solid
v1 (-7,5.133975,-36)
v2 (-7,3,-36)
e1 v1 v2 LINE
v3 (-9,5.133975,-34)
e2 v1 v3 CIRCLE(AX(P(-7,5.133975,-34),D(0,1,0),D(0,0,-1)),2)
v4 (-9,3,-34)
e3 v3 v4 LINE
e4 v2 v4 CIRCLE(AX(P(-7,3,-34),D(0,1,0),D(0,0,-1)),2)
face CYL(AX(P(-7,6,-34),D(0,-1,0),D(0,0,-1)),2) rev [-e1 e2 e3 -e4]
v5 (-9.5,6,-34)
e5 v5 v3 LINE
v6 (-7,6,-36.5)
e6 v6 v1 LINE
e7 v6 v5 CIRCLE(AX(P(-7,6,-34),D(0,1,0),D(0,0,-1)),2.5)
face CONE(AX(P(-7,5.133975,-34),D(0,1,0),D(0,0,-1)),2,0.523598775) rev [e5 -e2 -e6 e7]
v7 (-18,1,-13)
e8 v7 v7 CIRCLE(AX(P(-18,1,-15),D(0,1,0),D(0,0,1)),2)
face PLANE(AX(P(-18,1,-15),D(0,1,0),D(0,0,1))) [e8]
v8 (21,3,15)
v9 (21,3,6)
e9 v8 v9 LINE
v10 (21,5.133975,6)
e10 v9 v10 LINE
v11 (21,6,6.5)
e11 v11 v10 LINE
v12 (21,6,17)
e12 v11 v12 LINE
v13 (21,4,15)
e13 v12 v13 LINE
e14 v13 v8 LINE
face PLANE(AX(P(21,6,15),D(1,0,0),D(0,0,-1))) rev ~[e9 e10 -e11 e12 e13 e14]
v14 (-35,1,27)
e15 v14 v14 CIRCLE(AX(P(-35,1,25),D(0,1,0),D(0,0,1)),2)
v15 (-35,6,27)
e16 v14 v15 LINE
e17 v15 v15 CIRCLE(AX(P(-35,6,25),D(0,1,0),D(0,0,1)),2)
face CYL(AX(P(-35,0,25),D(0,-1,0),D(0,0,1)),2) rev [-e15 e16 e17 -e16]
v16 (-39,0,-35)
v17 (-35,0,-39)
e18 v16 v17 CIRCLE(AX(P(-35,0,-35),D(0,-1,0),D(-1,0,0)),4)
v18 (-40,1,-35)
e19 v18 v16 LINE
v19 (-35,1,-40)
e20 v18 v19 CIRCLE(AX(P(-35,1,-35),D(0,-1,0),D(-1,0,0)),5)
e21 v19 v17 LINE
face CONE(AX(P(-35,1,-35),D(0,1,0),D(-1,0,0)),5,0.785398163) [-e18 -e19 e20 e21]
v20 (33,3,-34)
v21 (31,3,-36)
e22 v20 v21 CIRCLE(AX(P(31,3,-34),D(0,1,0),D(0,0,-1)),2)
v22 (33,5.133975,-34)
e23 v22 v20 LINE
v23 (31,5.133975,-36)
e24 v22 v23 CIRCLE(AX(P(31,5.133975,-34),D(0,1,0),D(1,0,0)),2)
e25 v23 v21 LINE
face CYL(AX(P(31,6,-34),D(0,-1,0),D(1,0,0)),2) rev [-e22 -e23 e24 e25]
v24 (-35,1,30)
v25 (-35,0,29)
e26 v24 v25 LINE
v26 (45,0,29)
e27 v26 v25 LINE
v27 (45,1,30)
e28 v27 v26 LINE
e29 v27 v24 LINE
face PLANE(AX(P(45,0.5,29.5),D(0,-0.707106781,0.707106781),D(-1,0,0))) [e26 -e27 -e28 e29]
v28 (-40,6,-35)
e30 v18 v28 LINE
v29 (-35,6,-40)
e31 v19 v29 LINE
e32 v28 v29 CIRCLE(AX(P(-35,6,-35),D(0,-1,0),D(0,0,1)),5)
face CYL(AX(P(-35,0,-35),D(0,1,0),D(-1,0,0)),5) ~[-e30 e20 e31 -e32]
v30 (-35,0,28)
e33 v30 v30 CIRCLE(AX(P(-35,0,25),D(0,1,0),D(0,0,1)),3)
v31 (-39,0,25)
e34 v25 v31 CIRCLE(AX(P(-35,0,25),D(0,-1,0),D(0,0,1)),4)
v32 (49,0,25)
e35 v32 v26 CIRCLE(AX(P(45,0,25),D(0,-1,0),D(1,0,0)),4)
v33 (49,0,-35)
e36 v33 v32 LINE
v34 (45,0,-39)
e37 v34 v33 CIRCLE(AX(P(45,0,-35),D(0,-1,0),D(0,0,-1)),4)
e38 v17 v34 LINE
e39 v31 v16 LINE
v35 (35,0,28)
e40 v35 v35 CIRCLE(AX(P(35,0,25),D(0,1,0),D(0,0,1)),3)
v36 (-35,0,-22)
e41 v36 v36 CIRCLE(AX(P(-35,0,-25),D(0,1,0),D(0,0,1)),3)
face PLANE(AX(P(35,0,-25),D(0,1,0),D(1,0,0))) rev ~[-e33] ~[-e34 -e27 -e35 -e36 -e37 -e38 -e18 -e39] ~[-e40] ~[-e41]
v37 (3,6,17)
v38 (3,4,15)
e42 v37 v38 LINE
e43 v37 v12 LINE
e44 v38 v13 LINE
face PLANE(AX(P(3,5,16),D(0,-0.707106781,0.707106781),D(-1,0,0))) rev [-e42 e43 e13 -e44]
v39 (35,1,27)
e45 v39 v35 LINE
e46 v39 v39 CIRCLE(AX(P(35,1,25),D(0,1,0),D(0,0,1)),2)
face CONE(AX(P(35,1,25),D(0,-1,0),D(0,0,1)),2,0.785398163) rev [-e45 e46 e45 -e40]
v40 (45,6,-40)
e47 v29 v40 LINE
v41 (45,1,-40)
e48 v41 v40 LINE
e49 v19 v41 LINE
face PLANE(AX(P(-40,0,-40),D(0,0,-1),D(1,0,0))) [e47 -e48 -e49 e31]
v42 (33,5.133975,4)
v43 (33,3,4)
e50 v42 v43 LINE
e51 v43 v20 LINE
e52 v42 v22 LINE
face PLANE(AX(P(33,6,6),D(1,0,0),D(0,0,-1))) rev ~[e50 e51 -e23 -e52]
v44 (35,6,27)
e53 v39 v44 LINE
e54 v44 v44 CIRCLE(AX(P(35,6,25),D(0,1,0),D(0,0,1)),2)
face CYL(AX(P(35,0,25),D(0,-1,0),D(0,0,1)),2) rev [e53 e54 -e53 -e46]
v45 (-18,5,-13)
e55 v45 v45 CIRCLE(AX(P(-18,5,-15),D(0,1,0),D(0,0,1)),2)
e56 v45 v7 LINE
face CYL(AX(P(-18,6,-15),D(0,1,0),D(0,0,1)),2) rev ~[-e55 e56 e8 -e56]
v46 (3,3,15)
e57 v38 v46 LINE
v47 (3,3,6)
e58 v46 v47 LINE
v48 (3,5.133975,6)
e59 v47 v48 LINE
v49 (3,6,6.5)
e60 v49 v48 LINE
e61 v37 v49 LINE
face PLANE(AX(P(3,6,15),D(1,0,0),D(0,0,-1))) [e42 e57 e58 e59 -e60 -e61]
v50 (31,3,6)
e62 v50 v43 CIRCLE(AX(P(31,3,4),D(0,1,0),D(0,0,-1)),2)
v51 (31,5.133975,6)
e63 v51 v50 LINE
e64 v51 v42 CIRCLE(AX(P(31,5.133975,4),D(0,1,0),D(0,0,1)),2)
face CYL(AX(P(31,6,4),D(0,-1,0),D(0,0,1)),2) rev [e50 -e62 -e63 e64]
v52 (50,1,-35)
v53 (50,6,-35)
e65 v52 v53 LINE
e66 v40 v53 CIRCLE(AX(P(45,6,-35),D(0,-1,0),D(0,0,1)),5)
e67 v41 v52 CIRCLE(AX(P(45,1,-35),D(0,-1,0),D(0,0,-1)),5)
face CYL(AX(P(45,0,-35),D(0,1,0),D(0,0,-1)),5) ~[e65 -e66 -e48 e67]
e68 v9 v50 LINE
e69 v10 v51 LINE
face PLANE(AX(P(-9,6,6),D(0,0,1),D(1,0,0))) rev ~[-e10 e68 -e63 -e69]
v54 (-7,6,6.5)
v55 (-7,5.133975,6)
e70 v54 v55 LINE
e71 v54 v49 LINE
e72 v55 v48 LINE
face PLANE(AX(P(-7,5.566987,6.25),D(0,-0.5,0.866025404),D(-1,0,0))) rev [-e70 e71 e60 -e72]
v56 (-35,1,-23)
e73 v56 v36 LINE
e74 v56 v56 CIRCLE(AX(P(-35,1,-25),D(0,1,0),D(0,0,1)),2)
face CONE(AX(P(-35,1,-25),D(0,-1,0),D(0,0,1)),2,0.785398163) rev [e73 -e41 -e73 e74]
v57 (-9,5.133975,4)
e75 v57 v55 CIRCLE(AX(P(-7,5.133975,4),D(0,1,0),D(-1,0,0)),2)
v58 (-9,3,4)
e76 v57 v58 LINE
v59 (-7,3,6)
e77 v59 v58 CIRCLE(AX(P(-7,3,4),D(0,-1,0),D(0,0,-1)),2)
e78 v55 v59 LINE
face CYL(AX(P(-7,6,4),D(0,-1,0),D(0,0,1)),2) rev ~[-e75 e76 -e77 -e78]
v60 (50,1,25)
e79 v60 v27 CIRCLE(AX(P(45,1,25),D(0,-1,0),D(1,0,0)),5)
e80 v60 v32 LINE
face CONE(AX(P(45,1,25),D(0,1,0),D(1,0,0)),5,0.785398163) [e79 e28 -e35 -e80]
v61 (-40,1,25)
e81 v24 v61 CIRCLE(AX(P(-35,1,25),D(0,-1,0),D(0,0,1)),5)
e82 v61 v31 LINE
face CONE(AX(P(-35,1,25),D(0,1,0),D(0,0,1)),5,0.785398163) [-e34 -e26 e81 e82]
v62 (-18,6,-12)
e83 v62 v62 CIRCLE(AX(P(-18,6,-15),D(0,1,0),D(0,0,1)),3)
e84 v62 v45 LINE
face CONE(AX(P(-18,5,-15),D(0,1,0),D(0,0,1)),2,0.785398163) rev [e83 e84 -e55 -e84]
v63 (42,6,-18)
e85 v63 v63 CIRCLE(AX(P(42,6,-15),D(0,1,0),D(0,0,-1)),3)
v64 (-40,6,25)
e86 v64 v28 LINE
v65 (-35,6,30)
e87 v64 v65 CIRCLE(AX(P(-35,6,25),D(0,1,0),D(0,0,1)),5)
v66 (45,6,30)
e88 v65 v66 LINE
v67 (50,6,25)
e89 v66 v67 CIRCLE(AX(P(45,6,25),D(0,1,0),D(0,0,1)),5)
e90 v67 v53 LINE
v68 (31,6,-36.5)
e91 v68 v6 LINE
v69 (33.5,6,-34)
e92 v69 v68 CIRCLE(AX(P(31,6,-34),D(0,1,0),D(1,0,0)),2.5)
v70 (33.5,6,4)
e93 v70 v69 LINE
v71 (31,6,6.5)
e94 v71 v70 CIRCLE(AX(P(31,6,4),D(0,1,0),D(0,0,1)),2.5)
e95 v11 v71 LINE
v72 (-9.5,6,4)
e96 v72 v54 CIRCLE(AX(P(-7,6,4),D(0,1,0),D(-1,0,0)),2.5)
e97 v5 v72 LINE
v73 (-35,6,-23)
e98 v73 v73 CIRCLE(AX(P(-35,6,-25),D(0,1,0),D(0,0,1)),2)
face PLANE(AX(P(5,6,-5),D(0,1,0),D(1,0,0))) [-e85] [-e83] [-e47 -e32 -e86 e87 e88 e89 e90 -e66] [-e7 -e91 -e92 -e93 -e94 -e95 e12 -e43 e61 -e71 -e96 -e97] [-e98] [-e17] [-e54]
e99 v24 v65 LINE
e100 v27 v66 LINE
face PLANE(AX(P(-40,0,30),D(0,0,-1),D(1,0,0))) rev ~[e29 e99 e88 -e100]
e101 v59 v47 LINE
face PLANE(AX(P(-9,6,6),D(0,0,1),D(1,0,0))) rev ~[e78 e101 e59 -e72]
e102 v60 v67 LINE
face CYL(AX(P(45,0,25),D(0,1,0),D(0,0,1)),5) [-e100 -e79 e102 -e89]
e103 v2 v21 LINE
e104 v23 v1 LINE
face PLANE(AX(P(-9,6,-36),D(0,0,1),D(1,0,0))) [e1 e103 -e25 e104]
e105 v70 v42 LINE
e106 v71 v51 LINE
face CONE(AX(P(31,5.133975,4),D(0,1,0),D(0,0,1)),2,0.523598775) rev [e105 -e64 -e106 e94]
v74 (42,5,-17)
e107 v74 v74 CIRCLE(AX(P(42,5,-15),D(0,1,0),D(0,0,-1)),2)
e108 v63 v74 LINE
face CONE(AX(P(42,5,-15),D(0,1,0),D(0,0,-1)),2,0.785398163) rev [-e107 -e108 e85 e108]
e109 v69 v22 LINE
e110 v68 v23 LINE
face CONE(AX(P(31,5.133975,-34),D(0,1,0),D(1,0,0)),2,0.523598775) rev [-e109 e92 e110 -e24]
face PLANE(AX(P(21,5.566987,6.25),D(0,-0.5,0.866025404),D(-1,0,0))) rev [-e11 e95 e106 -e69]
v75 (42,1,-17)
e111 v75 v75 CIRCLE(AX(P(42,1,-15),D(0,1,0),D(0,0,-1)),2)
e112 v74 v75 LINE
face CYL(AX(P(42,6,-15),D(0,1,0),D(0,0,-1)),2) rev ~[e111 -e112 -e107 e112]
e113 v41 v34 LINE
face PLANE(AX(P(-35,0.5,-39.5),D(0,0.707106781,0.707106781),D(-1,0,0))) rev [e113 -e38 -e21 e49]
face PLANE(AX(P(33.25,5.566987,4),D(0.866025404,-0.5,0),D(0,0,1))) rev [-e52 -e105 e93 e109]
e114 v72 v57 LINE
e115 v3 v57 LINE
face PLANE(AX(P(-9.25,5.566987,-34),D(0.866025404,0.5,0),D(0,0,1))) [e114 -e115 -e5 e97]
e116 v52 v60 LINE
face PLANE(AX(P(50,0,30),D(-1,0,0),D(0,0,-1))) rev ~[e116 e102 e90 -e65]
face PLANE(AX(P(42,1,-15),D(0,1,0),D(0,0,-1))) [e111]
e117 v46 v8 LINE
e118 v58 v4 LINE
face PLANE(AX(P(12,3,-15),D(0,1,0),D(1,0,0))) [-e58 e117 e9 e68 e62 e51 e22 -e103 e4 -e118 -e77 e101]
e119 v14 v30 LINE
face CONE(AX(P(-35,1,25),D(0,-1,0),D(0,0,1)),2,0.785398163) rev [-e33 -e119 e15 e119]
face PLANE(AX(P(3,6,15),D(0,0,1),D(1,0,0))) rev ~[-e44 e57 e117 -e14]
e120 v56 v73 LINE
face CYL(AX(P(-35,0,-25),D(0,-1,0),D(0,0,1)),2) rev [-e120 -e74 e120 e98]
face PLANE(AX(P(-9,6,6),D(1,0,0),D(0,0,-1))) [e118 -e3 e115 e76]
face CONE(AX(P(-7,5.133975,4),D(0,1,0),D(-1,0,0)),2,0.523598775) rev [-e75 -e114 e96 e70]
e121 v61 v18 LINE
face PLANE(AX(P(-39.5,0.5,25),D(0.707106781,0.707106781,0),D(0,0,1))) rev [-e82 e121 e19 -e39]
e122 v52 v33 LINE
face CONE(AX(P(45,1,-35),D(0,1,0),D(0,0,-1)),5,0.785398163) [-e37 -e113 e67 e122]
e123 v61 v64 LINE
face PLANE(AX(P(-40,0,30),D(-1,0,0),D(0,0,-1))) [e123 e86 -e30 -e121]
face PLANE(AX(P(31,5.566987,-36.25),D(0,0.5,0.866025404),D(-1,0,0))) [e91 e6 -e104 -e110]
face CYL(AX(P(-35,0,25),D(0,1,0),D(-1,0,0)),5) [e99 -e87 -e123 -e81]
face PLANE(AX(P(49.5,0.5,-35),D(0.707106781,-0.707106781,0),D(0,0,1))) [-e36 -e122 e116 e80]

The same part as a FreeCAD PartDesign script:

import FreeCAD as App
import Part
import Sketcher

V = App.Vector
Q = App.Units.Quantity


def edges_at(feature, points):
    """Names of the edges that pass closest to the given points."""
    edges = feature.Shape.Edges
    near = lambda p: min(range(len(edges)), key=lambda i: edges[i].distToShape(Part.Vertex(*p))[0])
    return sorted({f"Edge{near(p) + 1}" for p in points})


def add_polygon(sketch, points):
    """Adds a closed chain of lines whose ends are joined by coincident constraints."""
    first, n = sketch.GeometryCount, len(points)
    for a, b in zip(points, points[1:] + points[:1]):
        sketch.addGeometry(Part.LineSegment(App.Vector(*a, 0), App.Vector(*b, 0)), False)
    for i in range(n):
        sketch.addConstraint(Sketcher.Constraint("Coincident", first + i, 2, first + (i + 1) % n, 1))

doc = App.newDocument("Part")
body = doc.addObject("PartDesign::Body", "Body")

# Sketch on XZ plane
sketch1 = body.newObject("Sketcher::SketchObject", "Sketch")
sketch1.AttachmentSupport = (doc.getObject("XZ_Plane"), [""])
sketch1.MapMode = "FlatFace"
add_polygon(sketch1, [(-40, -40), (-40, 30), (50, 30), (50, -40)])  # lines 0-3
sketch1.addGeometry(Part.Circle(V(-35, 25, 0), V(0, 0, 1), 2), False)  # 4
sketch1.addGeometry(Part.Circle(V(35, 25, 0), V(0, 0, 1), 2), False)  # 5
sketch1.addGeometry(Part.Circle(V(-35, -25, 0), V(0, 0, 1), 2), False)  # 6
sketch1.addConstraint(Sketcher.Constraint("Vertical", 0))
sketch1.addConstraint(Sketcher.Constraint("Horizontal", 1))
sketch1.addConstraint(Sketcher.Constraint("Vertical", 2))
sketch1.addConstraint(Sketcher.Constraint("Horizontal", 3))
sketch1.addConstraint(Sketcher.Constraint("Equal", 4, 5))
sketch1.addConstraint(Sketcher.Constraint("Equal", 5, 6))
sketch1.addConstraint(Sketcher.Constraint("Symmetric", 5, 3, 6, 3, -1, 1))
sketch1.addConstraint(Sketcher.Constraint("Symmetric", 4, 3, 5, 3, -2))
sketch1.addConstraint(Sketcher.Constraint("Diameter", 4, Q("4 mm")))
sketch1.addConstraint(Sketcher.Constraint("DistanceX", 1, 1, 1, 2, Q("90 mm")))
sketch1.addConstraint(Sketcher.Constraint("DistanceY", 0, 1, 0, 2, Q("70 mm")))
sketch1.addConstraint(Sketcher.Constraint("DistanceX", 4, 3, -1, 1, Q("35 mm")))
sketch1.addConstraint(Sketcher.Constraint("DistanceY", -1, 1, 4, 3, Q("25 mm")))
sketch1.addConstraint(Sketcher.Constraint("DistanceX", 0, 2, -1, 1, Q("40 mm")))
sketch1.addConstraint(Sketcher.Constraint("DistanceY", -1, 1, 0, 2, Q("30 mm")))
pad1 = body.newObject("PartDesign::Pad", "Pad")
pad1.Profile = sketch1
pad1.Length = 6
pad1.Reversed = True
doc.recompute()

fillet = body.newObject("PartDesign::Fillet", "Fillet")
fillet.Base = (pad1, edges_at(pad1, [
    (-40, 3, 30),
    (-40, 3, -40),
    (50, 3, -40),
    (50, 3, 30),
]))
fillet.Radius = 5

# Sketch on XZ plane
sketch2 = body.newObject("Sketcher::SketchObject", "Sketch001")
sketch2.AttachmentSupport = (doc.getObject("XZ_Plane"), [""])
sketch2.MapMode = "FlatFace"
sketch2.AttachmentOffset = App.Placement(V(0, 0, -6), App.Rotation())
add_polygon(sketch2, [(-9, -36), (-9, 6), (33, 6), (33, -36)])  # lines 0-3
sketch2.addConstraint(Sketcher.Constraint("Vertical", 0))
sketch2.addConstraint(Sketcher.Constraint("Horizontal", 1))
sketch2.addConstraint(Sketcher.Constraint("Vertical", 2))
sketch2.addConstraint(Sketcher.Constraint("Horizontal", 3))
sketch2.addConstraint(Sketcher.Constraint("Equal", 3, 0))
sketch2.addConstraint(Sketcher.Constraint("DistanceX", 1, 1, 1, 2, Q("42 mm")))
sketch2.addConstraint(Sketcher.Constraint("DistanceX", 0, 2, -1, 1, Q("9 mm")))
sketch2.addConstraint(Sketcher.Constraint("DistanceY", -1, 1, 0, 2, Q("6 mm")))
pocket1 = body.newObject("PartDesign::Pocket", "Pocket")
pocket1.Profile = sketch2
pocket1.Length = 3
pocket1.Reversed = True

# Sketch on XZ plane
sketch3 = body.newObject("Sketcher::SketchObject", "Sketch002")
sketch3.AttachmentSupport = (doc.getObject("XZ_Plane"), [""])
sketch3.MapMode = "FlatFace"
sketch3.AttachmentOffset = App.Placement(V(0, 0, -6), App.Rotation())
add_polygon(sketch3, [(3, -3), (3, 15), (21, 15), (21, -3)])  # lines 0-3
sketch3.addConstraint(Sketcher.Constraint("Vertical", 0))
sketch3.addConstraint(Sketcher.Constraint("Horizontal", 1))
sketch3.addConstraint(Sketcher.Constraint("Vertical", 2))
sketch3.addConstraint(Sketcher.Constraint("Horizontal", 3))
sketch3.addConstraint(Sketcher.Constraint("Equal", 3, 0))
sketch3.addConstraint(Sketcher.Constraint("DistanceX", 1, 1, 1, 2, Q("18 mm")))
sketch3.addConstraint(Sketcher.Constraint("DistanceX", -1, 1, 0, 2, Q("3 mm")))
sketch3.addConstraint(Sketcher.Constraint("DistanceY", -1, 1, 0, 2, Q("15 mm")))
pocket2 = body.newObject("PartDesign::Pocket", "Pocket001")
pocket2.Profile = sketch3
pocket2.Length = 3
pocket2.Reversed = True
doc.recompute()

fillet2 = body.newObject("PartDesign::Fillet", "Fillet001")
fillet2.Base = (pocket2, edges_at(pocket2, [
    (33, 4.5, -36),
    (33, 4.5, 6),
    (-9, 4.5, 6),
    (-9, 4.5, -36),
]))
fillet2.Radius = 2
doc.recompute()

chamfer = body.newObject("PartDesign::Chamfer", "Chamfer")
chamfer.Base = (fillet2, edges_at(fillet2, [(12, 6, 15)]))
chamfer.Size = 2

# Sketch on XZ plane
sketch4 = body.newObject("Sketcher::SketchObject", "Sketch003")
sketch4.AttachmentSupport = (doc.getObject("XZ_Plane"), [""])
sketch4.MapMode = "FlatFace"
sketch4.AttachmentOffset = App.Placement(V(0, 0, -6), App.Rotation())
sketch4.addGeometry(Part.Circle(V(-18, -15, 0), V(0, 0, 1), 2), False)
sketch4.addGeometry(Part.Circle(V(42, -15, 0), V(0, 0, 1), 2), False)
sketch4.addConstraint(Sketcher.Constraint("Equal", 0, 1))
sketch4.addConstraint(Sketcher.Constraint("Horizontal", 0, 3, 1, 3))
sketch4.addConstraint(Sketcher.Constraint("Diameter", 0, Q("4 mm")))
sketch4.addConstraint(Sketcher.Constraint("DistanceX", 0, 3, -1, 1, Q("18 mm")))
sketch4.addConstraint(Sketcher.Constraint("DistanceY", 0, 3, -1, 1, Q("15 mm")))
sketch4.addConstraint(Sketcher.Constraint("DistanceX", -1, 1, 1, 3, Q("42 mm")))
pocket3 = body.newObject("PartDesign::Pocket", "Pocket002")
pocket3.Profile = sketch4
pocket3.Length = 5
pocket3.Reversed = True
doc.recompute()

chamfer2 = body.newObject("PartDesign::Chamfer", "Chamfer001")
chamfer2.Base = (pocket3, edges_at(pocket3, [(-18, 6, -17), (42, 6, -13)]))
chamfer2.Size = 1
doc.recompute()

chamfer3 = body.newObject("PartDesign::Chamfer", "Chamfer002")
chamfer3.Base = (chamfer2, edges_at(chamfer2, [
    (-35, 0, -27),
    (-35, 0, 23),
    (35, 0, 23),
    (-40, 0, -5),
    (5, 0, 30),
    (5, 0, -40),
    (50, 0, -5),
    (-38.536, 0, 28.536),
    (48.536, 0, 28.536),
    (48.536, 0, -38.536),
    (-38.536, 0, -38.536),
]))
chamfer3.Size = 1
doc.recompute()

chamfer4 = body.newObject("PartDesign::Chamfer", "Chamfer003")
chamfer4.Base = (chamfer3, edges_at(chamfer3, [
    (26, 6, 6),
    (33, 6, -15),
    (-2, 6, 6),
    (-9, 6, -15),
    (12, 6, -36),
    (32.414, 6, 5.414),
    (-8.414, 6, 5.414),
    (-8.414, 6, -35.414),
    (32.414, 6, -35.414),
]))
chamfer4.ChamferType = "Two distances"
chamfer4.Size = 0.5
chamfer4.Size2 = 0.866025

doc.recompute()
